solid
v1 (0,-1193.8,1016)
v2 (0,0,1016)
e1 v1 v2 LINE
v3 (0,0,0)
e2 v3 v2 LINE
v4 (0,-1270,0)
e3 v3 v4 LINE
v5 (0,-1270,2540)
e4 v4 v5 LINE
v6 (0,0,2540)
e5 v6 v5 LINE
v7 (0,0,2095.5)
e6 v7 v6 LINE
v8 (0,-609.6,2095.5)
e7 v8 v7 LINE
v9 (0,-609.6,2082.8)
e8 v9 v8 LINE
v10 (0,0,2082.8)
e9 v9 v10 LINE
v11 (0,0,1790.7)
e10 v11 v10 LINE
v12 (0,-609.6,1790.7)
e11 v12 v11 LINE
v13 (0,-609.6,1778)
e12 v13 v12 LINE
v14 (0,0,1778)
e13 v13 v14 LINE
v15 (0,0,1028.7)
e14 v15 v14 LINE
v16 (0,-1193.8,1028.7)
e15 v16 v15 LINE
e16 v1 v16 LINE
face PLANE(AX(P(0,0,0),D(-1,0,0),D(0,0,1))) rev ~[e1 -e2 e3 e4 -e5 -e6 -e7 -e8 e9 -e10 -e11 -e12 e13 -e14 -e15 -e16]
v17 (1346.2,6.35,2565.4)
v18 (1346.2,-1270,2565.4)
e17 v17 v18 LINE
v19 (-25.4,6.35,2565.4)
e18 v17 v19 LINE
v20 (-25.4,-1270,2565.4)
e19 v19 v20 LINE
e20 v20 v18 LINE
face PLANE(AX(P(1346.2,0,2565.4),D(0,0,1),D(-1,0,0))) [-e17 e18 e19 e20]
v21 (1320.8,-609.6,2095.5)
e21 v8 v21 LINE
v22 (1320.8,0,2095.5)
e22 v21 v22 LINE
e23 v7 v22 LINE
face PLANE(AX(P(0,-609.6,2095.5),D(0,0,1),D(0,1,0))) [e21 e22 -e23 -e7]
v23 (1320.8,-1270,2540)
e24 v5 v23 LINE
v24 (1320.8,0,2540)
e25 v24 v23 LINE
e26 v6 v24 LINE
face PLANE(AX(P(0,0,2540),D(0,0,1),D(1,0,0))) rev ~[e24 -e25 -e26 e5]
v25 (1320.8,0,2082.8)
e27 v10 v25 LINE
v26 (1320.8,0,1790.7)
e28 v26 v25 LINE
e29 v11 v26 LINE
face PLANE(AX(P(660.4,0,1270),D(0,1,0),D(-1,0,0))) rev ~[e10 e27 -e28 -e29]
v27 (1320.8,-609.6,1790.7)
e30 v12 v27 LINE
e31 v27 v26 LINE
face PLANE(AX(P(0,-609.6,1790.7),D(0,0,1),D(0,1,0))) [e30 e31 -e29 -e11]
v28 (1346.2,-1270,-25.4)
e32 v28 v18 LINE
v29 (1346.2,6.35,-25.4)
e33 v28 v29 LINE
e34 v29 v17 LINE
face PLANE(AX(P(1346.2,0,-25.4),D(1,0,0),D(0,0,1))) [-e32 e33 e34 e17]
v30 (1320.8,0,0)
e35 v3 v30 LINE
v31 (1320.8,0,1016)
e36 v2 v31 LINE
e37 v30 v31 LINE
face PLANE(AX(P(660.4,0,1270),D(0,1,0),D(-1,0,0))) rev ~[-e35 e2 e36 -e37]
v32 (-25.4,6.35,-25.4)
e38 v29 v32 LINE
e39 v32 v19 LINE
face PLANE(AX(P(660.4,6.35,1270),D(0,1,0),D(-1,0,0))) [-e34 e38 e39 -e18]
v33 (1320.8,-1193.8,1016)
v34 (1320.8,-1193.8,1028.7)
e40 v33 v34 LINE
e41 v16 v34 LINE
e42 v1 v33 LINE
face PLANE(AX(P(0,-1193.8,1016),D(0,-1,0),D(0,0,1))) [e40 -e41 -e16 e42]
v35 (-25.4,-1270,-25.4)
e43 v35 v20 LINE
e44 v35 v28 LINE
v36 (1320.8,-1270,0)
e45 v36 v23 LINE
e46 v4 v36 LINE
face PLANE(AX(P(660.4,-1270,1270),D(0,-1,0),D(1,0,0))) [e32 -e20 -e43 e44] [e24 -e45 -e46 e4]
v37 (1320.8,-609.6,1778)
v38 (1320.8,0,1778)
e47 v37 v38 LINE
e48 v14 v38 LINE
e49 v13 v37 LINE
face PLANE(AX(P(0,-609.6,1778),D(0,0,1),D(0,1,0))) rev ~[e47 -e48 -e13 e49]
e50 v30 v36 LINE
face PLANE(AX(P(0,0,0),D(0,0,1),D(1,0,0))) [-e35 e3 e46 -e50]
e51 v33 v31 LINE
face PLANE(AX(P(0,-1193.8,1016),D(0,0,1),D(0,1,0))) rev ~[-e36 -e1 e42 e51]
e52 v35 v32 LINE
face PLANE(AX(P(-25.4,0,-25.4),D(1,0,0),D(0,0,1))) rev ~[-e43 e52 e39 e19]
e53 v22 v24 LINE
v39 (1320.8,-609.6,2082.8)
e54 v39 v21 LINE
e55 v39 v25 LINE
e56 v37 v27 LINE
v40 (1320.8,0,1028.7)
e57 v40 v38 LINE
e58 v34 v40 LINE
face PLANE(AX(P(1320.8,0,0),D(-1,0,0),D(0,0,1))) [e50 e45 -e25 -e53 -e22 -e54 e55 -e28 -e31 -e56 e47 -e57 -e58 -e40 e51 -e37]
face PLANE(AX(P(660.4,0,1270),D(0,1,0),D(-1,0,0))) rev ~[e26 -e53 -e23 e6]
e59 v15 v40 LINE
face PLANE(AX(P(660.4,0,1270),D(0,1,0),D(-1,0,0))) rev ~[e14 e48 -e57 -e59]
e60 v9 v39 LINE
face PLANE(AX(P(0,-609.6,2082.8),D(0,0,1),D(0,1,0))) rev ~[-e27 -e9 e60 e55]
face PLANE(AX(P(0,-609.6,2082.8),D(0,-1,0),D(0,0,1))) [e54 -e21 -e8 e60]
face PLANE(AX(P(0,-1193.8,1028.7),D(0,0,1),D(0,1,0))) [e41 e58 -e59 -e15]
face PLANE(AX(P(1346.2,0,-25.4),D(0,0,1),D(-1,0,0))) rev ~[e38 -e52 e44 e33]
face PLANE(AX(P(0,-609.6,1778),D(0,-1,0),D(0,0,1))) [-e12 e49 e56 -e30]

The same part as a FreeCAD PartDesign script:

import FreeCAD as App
import Part
import Sketcher
Q = App.Units.Quantity

doc = App.newDocument("Part")
params = doc.addObject("Spreadsheet::Sheet", "Params")
for row, (alias, value) in enumerate([
    ("sketch1_width", "54 in"),
    ("sketch1_width2", "52 in"),
    ("sketch1_height", "102 in"),
    ("sketch1_height2", "100 in"),
    ("pad1_length", "50 in"),
    ("sketch2_width", "47 in"),
    ("sketch2_width2", "24 in"),
    ("sketch2_height", "0.5 in"),
    ("sketch3_width", "54 in"),
    ("sketch3_height", "102 in"),
    ("pad3_length", "0.25 in"),
], start=1):
    params.set(f"A{row}", alias)
    params.set(f"B{row}", "=" + value)
    params.setAlias(f"B{row}", alias)

body = doc.addObject("PartDesign::Body", "Body")

# Sketch on XZ plane
sketch1 = body.newObject("Sketcher::SketchObject", "Sketch")
sketch1.AttachmentSupport = (doc.getObject("XZ_Plane"), [""])
sketch1.MapMode = "FlatFace"
sketch1.addGeometry([
    Part.LineSegment(App.Vector(-25, 2565, 0), App.Vector(-25, -25, 0)),  # 0
    Part.LineSegment(App.Vector(-25, -25, 0), App.Vector(1346, -25, 0)),  # 1
    Part.LineSegment(App.Vector(1346, -25, 0), App.Vector(1346, 2565, 0)),  # 2
    Part.LineSegment(App.Vector(1346, 2565, 0), App.Vector(-25, 2565, 0)),  # 3
    Part.LineSegment(App.Vector(1321, 0, 0), App.Vector(0, 0, 0)),  # 4
    Part.LineSegment(App.Vector(0, 0, 0), App.Vector(0, 2540, 0)),  # 5
    Part.LineSegment(App.Vector(0, 2540, 0), App.Vector(1321, 2540, 0)),  # 6
    Part.LineSegment(App.Vector(1321, 2540, 0), App.Vector(1321, 0, 0)),  # 7
], False)
sketch1.addConstraint([
    Sketcher.Constraint("Coincident", 0, 2, 1, 1),
    Sketcher.Constraint("Coincident", 1, 2, 2, 1),
    Sketcher.Constraint("Coincident", 2, 2, 3, 1),
    Sketcher.Constraint("Coincident", 3, 2, 0, 1),
    Sketcher.Constraint("Coincident", 4, 2, 5, 1),
    Sketcher.Constraint("Coincident", 5, 2, 6, 1),
    Sketcher.Constraint("Coincident", 6, 2, 7, 1),
    Sketcher.Constraint("Coincident", 7, 2, 4, 1),
    Sketcher.Constraint("Vertical", 0),
    Sketcher.Constraint("Horizontal", 1),
    Sketcher.Constraint("Vertical", 2),
    Sketcher.Constraint("Horizontal", 3),
    Sketcher.Constraint("Horizontal", 4),
    Sketcher.Constraint("Vertical", 5),
    Sketcher.Constraint("Horizontal", 6),
    Sketcher.Constraint("Vertical", 7),
    Sketcher.Constraint("Coincident", 4, 2, -1, 1),
    Sketcher.Constraint("DistanceX", 1, 1, 1, 2, Q("54 in")),
    Sketcher.Constraint("DistanceX", 4, 2, 4, 1, Q("52 in")),
    Sketcher.Constraint("DistanceY", 0, 2, 0, 1, Q("102 in")),
    Sketcher.Constraint("DistanceY", 5, 1, 5, 2, Q("100 in")),
    Sketcher.Constraint("DistanceX", 0, 2, -1, 1, Q("1 in")),
    Sketcher.Constraint("DistanceY", 0, 2, -1, 1, Q("1 in")),
])
sketch1.setExpression("Constraints[17]", "Params.sketch1_width")
sketch1.setExpression("Constraints[18]", "Params.sketch1_width2")
sketch1.setExpression("Constraints[19]", "Params.sketch1_height")
sketch1.setExpression("Constraints[20]", "Params.sketch1_height2")
pad1 = body.newObject("PartDesign::Pad", "Pad")
pad1.Profile = sketch1
pad1.setExpression("Length", "Params.pad1_length")

# Sketch on YZ plane
sketch2 = body.newObject("Sketcher::SketchObject", "Sketch001")
sketch2.AttachmentSupport = (doc.getObject("YZ_Plane"), [""])
sketch2.MapMode = "FlatFace"
sketch2.addGeometry([
    Part.LineSegment(App.Vector(-1194, 1029, 0), App.Vector(-1194, 1016, 0)),  # 0
    Part.LineSegment(App.Vector(-1194, 1016, 0), App.Vector(0, 1016, 0)),  # 1
    Part.LineSegment(App.Vector(0, 1016, 0), App.Vector(0, 1029, 0)),  # 2
    Part.LineSegment(App.Vector(0, 1029, 0), App.Vector(-1194, 1029, 0)),  # 3
    Part.LineSegment(App.Vector(-610, 2096, 0), App.Vector(-610, 2083, 0)),  # 4
    Part.LineSegment(App.Vector(-610, 2083, 0), App.Vector(0, 2083, 0)),  # 5
    Part.LineSegment(App.Vector(0, 2083, 0), App.Vector(0, 2096, 0)),  # 6
    Part.LineSegment(App.Vector(0, 2096, 0), App.Vector(-610, 2096, 0)),  # 7
    Part.LineSegment(App.Vector(-610, 1791, 0), App.Vector(-610, 1778, 0)),  # 8
    Part.LineSegment(App.Vector(-610, 1778, 0), App.Vector(0, 1778, 0)),  # 9
    Part.LineSegment(App.Vector(0, 1778, 0), App.Vector(0, 1791, 0)),  # 10
    Part.LineSegment(App.Vector(0, 1791, 0), App.Vector(-610, 1791, 0)),  # 11
], False)
sketch2.addConstraint([
    Sketcher.Constraint("Coincident", 0, 2, 1, 1),
    Sketcher.Constraint("Coincident", 1, 2, 2, 1),
    Sketcher.Constraint("Coincident", 2, 2, 3, 1),
    Sketcher.Constraint("Coincident", 3, 2, 0, 1),
    Sketcher.Constraint("Coincident", 4, 2, 5, 1),
    Sketcher.Constraint("Coincident", 5, 2, 6, 1),
    Sketcher.Constraint("Coincident", 6, 2, 7, 1),
    Sketcher.Constraint("Coincident", 7, 2, 4, 1),
    Sketcher.Constraint("Coincident", 8, 2, 9, 1),
    Sketcher.Constraint("Coincident", 9, 2, 10, 1),
    Sketcher.Constraint("Coincident", 10, 2, 11, 1),
    Sketcher.Constraint("Coincident", 11, 2, 8, 1),
    Sketcher.Constraint("Vertical", 0),
    Sketcher.Constraint("Horizontal", 1),
    Sketcher.Constraint("Vertical", 2),
    Sketcher.Constraint("Horizontal", 3),
    Sketcher.Constraint("Vertical", 4),
    Sketcher.Constraint("Horizontal", 5),
    Sketcher.Constraint("Vertical", 6),
    Sketcher.Constraint("Horizontal", 7),
    Sketcher.Constraint("Vertical", 8),
    Sketcher.Constraint("Horizontal", 9),
    Sketcher.Constraint("Vertical", 10),
    Sketcher.Constraint("Horizontal", 11),
    Sketcher.Constraint("PointOnObject", 1, 2, -2),
    Sketcher.Constraint("PointOnObject", 5, 2, -2),
    Sketcher.Constraint("PointOnObject", 9, 2, -2),
    Sketcher.Constraint("Vertical", 7, 2, 8, 2),
    Sketcher.Constraint("Equal", 2, 4),
    Sketcher.Constraint("Equal", 6, 8),
    Sketcher.Constraint("DistanceX", 1, 1, 1, 2, Q("47 in")),
    Sketcher.Constraint("DistanceX", 5, 1, 5, 2, Q("24 in")),
    Sketcher.Constraint("DistanceY", 0, 2, 0, 1, Q("0.5 in")),
    Sketcher.Constraint("DistanceY", -1, 1, 0, 2, Q("40 in")),
    Sketcher.Constraint("DistanceY", -1, 1, 4, 2, Q("82 in")),
    Sketcher.Constraint("DistanceY", -1, 1, 8, 2, Q("70 in")),
])
sketch2.setExpression("Constraints[30]", "Params.sketch2_width")
sketch2.setExpression("Constraints[31]", "Params.sketch2_width2")
sketch2.setExpression("Constraints[32]", "Params.sketch2_height")
pad2 = body.newObject("PartDesign::Pad", "Pad001")
pad2.Profile = sketch2
pad2.Type = "UpToLast"

# Sketch on XZ plane
sketch3 = body.newObject("Sketcher::SketchObject", "Sketch002")
sketch3.AttachmentSupport = (doc.getObject("XZ_Plane"), [""])
sketch3.MapMode = "FlatFace"
sketch3.addGeometry([
    Part.LineSegment(App.Vector(1346, 2565, 0), App.Vector(1346, -25, 0)),
    Part.LineSegment(App.Vector(1346, -25, 0), App.Vector(-25, -25, 0)),
    Part.LineSegment(App.Vector(-25, -25, 0), App.Vector(-25, 2565, 0)),
    Part.LineSegment(App.Vector(-25, 2565, 0), App.Vector(1346, 2565, 0)),
], False)
sketch3.addConstraint([
    Sketcher.Constraint("Coincident", 0, 2, 1, 1),
    Sketcher.Constraint("Coincident", 1, 2, 2, 1),
    Sketcher.Constraint("Coincident", 2, 2, 3, 1),
    Sketcher.Constraint("Coincident", 3, 2, 0, 1),
    Sketcher.Constraint("Vertical", 0),
    Sketcher.Constraint("Horizontal", 1),
    Sketcher.Constraint("Vertical", 2),
    Sketcher.Constraint("Horizontal", 3),
    Sketcher.Constraint("DistanceX", 1, 2, 1, 1, Q("54 in")),
    Sketcher.Constraint("DistanceY", 0, 2, 0, 1, Q("102 in")),
    Sketcher.Constraint("DistanceX", -1, 1, 0, 2, Q("53 in")),
    Sketcher.Constraint("DistanceY", 0, 2, -1, 1, Q("1 in")),
])
sketch3.setExpression("Constraints[8]", "Params.sketch3_width")
sketch3.setExpression("Constraints[9]", "Params.sketch3_height")
pad3 = body.newObject("PartDesign::Pad", "Pad002")
pad3.Profile = sketch3
pad3.setExpression("Length", "Params.pad3_length")
pad3.Reversed = True

doc.recompute()
